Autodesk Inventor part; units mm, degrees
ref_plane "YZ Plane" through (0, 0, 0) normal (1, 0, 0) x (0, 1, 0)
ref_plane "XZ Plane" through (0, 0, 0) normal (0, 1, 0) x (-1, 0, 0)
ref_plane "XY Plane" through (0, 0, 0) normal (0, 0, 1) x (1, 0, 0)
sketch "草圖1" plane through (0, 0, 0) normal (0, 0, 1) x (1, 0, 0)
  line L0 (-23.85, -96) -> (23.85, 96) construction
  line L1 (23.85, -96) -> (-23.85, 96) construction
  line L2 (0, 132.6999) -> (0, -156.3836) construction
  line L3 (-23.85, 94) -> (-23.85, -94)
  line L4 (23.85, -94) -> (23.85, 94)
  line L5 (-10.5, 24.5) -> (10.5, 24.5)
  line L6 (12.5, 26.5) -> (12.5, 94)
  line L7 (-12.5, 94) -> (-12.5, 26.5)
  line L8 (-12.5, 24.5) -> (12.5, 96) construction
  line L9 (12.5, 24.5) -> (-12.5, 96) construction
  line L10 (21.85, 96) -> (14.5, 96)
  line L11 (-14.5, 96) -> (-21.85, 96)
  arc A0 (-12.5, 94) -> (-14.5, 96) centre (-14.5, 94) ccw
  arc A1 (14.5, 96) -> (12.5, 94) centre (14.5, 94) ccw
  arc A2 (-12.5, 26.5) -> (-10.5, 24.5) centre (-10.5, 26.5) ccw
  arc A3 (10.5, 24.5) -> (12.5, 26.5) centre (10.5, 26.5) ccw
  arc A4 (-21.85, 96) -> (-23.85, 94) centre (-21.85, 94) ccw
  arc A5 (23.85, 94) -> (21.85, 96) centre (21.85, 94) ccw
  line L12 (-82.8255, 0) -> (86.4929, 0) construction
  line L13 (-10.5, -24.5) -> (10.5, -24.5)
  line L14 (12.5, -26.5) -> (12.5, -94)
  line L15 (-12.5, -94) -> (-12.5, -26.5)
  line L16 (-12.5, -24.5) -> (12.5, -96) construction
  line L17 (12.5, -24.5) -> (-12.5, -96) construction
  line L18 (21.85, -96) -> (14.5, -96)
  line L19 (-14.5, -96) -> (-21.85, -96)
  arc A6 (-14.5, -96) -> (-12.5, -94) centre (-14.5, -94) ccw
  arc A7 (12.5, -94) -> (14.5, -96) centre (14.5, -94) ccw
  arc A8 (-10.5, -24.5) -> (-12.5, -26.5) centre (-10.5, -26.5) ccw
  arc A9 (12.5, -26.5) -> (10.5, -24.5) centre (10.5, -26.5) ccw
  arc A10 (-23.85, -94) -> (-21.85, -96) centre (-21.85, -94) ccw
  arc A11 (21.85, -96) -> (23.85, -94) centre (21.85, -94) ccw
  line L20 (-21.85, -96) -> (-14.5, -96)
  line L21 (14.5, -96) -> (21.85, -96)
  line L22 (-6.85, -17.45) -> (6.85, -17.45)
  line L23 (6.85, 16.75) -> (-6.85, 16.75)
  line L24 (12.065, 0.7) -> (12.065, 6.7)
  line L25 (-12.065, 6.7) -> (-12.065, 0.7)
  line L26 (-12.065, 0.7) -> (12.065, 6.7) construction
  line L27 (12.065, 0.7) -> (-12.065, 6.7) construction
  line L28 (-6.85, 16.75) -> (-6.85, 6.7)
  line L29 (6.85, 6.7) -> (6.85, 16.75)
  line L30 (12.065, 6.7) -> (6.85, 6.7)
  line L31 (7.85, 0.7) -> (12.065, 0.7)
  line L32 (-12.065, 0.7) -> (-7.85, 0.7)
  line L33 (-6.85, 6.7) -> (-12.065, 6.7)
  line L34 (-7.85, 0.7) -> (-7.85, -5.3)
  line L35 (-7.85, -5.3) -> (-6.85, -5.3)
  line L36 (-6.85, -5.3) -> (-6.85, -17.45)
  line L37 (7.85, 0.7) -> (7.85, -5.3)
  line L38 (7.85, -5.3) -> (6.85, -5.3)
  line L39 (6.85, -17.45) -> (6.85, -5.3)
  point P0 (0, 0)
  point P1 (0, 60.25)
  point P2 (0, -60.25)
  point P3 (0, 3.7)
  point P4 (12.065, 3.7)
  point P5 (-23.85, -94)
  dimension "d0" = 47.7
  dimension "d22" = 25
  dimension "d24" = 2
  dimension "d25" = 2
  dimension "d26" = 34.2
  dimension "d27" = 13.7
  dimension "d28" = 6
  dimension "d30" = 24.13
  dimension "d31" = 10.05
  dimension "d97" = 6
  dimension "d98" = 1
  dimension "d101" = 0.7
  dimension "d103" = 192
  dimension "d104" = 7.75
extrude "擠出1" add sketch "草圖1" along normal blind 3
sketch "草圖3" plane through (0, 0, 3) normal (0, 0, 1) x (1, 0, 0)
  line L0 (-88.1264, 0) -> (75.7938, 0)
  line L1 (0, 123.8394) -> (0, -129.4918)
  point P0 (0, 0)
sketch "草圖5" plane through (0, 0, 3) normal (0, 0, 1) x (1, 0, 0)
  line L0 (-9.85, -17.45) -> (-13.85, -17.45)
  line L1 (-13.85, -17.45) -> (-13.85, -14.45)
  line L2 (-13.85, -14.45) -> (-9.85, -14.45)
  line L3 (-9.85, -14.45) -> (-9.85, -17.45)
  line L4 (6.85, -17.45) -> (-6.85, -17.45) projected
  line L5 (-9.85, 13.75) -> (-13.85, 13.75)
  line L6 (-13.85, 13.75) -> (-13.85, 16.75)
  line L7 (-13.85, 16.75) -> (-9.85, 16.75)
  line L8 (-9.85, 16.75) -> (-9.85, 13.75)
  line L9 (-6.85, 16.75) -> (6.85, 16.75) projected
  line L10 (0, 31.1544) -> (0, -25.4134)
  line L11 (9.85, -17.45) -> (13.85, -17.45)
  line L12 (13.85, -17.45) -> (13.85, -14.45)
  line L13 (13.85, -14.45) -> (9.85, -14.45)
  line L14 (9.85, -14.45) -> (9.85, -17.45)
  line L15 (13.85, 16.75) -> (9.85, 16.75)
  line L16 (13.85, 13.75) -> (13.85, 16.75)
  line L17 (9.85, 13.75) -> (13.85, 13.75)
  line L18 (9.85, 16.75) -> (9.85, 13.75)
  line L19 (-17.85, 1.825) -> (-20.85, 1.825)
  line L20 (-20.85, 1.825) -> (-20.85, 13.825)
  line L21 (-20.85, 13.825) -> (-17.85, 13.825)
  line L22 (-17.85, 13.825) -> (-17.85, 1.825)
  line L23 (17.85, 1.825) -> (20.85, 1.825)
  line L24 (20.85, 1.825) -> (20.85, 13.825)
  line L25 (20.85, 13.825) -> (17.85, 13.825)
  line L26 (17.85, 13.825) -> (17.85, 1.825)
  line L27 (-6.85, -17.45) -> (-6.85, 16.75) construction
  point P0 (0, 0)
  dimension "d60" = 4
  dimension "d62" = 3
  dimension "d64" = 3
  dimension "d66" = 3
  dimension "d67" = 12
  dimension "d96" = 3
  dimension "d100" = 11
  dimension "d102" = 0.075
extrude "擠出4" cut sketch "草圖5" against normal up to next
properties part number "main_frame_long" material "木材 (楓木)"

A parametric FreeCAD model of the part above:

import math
import FreeCAD as App
import Part
import Sketcher

doc = App.newDocument("Part")
body = doc.addObject("PartDesign::Body", "Body")

sketch1 = body.newObject("Sketcher::SketchObject", "Sketch")
sketch1.AttachmentSupport = (doc.getObject("XY_Plane"), [""])
sketch1.MapMode = "FlatFace"
sketch1.addGeometry(Part.ArcOfCircle(Part.Circle(App.Vector(-21.9, 94, 0), App.Vector(0, 0, 1), 2), math.radians(90), math.radians(180)), False)
sketch1.addGeometry(Part.LineSegment(App.Vector(-23.9, 94, 0), App.Vector(-23.9, -94, 0)), False)
sketch1.addGeometry(Part.ArcOfCircle(Part.Circle(App.Vector(-21.9, -94, 0), App.Vector(0, 0, 1), 2), math.radians(180), math.radians(270)), False)
sketch1.addGeometry(Part.LineSegment(App.Vector(-21.9, -96, 0), App.Vector(-14.5, -96, 0)), False)
sketch1.addGeometry(Part.ArcOfCircle(Part.Circle(App.Vector(-14.5, -94, 0), App.Vector(0, 0, 1), 2), math.radians(-90), math.radians(0)), False)
sketch1.addGeometry(Part.LineSegment(App.Vector(-12.5, -94, 0), App.Vector(-12.5, -26.5, 0)), False)
sketch1.addGeometry(Part.ArcOfCircle(Part.Circle(App.Vector(-10.5, -26.5, 0), App.Vector(0, 0, 1), 2), math.radians(90), math.radians(180)), False)
sketch1.addGeometry(Part.LineSegment(App.Vector(-10.5, -24.5, 0), App.Vector(10.5, -24.5, 0)), False)
sketch1.addGeometry(Part.ArcOfCircle(Part.Circle(App.Vector(10.5, -26.5, 0), App.Vector(0, 0, 1), 2), math.radians(0), math.radians(90)), False)
sketch1.addGeometry(Part.LineSegment(App.Vector(12.5, -26.5, 0), App.Vector(12.5, -94, 0)), False)
sketch1.addGeometry(Part.ArcOfCircle(Part.Circle(App.Vector(14.5, -94, 0), App.Vector(0, 0, 1), 2), math.radians(180), math.radians(270)), False)
sketch1.addGeometry(Part.LineSegment(App.Vector(14.5, -96, 0), App.Vector(21.9, -96, 0)), False)
sketch1.addGeometry(Part.ArcOfCircle(Part.Circle(App.Vector(21.9, -94, 0), App.Vector(0, 0, 1), 2), math.radians(-90), math.radians(0)), False)
sketch1.addGeometry(Part.LineSegment(App.Vector(23.9, -94, 0), App.Vector(23.9, 94, 0)), False)
sketch1.addGeometry(Part.ArcOfCircle(Part.Circle(App.Vector(21.9, 94, 0), App.Vector(0, 0, 1), 2), math.radians(0), math.radians(90)), False)
sketch1.addGeometry(Part.LineSegment(App.Vector(21.9, 96, 0), App.Vector(14.5, 96, 0)), False)
sketch1.addGeometry(Part.ArcOfCircle(Part.Circle(App.Vector(14.5, 94, 0), App.Vector(0, 0, 1), 2), math.radians(90), math.radians(180)), False)
sketch1.addGeometry(Part.LineSegment(App.Vector(12.5, 94, 0), App.Vector(12.5, 26.5, 0)), False)
sketch1.addGeometry(Part.ArcOfCircle(Part.Circle(App.Vector(10.5, 26.5, 0), App.Vector(0, 0, 1), 2), math.radians(-90), math.radians(0)), False)
sketch1.addGeometry(Part.LineSegment(App.Vector(10.5, 24.5, 0), App.Vector(-10.5, 24.5, 0)), False)
sketch1.addGeometry(Part.ArcOfCircle(Part.Circle(App.Vector(-10.5, 26.5, 0), App.Vector(0, 0, 1), 2), math.radians(180), math.radians(270)), False)
sketch1.addGeometry(Part.LineSegment(App.Vector(-12.5, 26.5, 0), App.Vector(-12.5, 94, 0)), False)
sketch1.addGeometry(Part.ArcOfCircle(Part.Circle(App.Vector(-14.5, 94, 0), App.Vector(0, 0, 1), 2), math.radians(0), math.radians(90)), False)
sketch1.addGeometry(Part.LineSegment(App.Vector(-14.5, 96, 0), App.Vector(-21.9, 96, 0)), False)
sketch1.addGeometry(Part.LineSegment(App.Vector(6.8, -17.4, 0), App.Vector(-6.8, -17.4, 0)), False)
sketch1.addGeometry(Part.LineSegment(App.Vector(-6.8, -17.4, 0), App.Vector(-6.8, -5.3, 0)), False)
sketch1.addGeometry(Part.LineSegment(App.Vector(-6.8, -5.3, 0), App.Vector(-7.8, -5.3, 0)), False)
sketch1.addGeometry(Part.LineSegment(App.Vector(-7.8, -5.3, 0), App.Vector(-7.8, 0.7, 0)), False)
sketch1.addGeometry(Part.LineSegment(App.Vector(-7.8, 0.7, 0), App.Vector(-12.1, 0.7, 0)), False)
sketch1.addGeometry(Part.LineSegment(App.Vector(-12.1, 0.7, 0), App.Vector(-12.1, 6.7, 0)), False)
sketch1.addGeometry(Part.LineSegment(App.Vector(-12.1, 6.7, 0), App.Vector(-6.8, 6.7, 0)), False)
sketch1.addGeometry(Part.LineSegment(App.Vector(-6.8, 6.7, 0), App.Vector(-6.8, 16.8, 0)), False)
sketch1.addGeometry(Part.LineSegment(App.Vector(-6.8, 16.8, 0), App.Vector(6.8, 16.8, 0)), False)
sketch1.addGeometry(Part.LineSegment(App.Vector(6.8, 16.8, 0), App.Vector(6.8, 6.7, 0)), False)
sketch1.addGeometry(Part.LineSegment(App.Vector(6.8, 6.7, 0), App.Vector(12.1, 6.7, 0)), False)
sketch1.addGeometry(Part.LineSegment(App.Vector(12.1, 6.7, 0), App.Vector(12.1, 0.7, 0)), False)
sketch1.addGeometry(Part.LineSegment(App.Vector(12.1, 0.7, 0), App.Vector(7.8, 0.7, 0)), False)
sketch1.addGeometry(Part.LineSegment(App.Vector(7.8, 0.7, 0), App.Vector(7.8, -5.3, 0)), False)
sketch1.addGeometry(Part.LineSegment(App.Vector(7.8, -5.3, 0), App.Vector(6.8, -5.3, 0)), False)
sketch1.addGeometry(Part.LineSegment(App.Vector(6.8, -5.3, 0), App.Vector(6.8, -17.4, 0)), False)
sketch1.addConstraint(Sketcher.Constraint("Tangent", 0, 2, 1, 1))
sketch1.addConstraint(Sketcher.Constraint("Tangent", 1, 2, 2, 1))
sketch1.addConstraint(Sketcher.Constraint("Tangent", 2, 2, 3, 1))
sketch1.addConstraint(Sketcher.Constraint("Tangent", 3, 2, 4, 1))
sketch1.addConstraint(Sketcher.Constraint("Tangent", 4, 2, 5, 1))
sketch1.addConstraint(Sketcher.Constraint("Tangent", 5, 2, 6, 2))
sketch1.addConstraint(Sketcher.Constraint("Tangent", 6, 1, 7, 1))
sketch1.addConstraint(Sketcher.Constraint("Tangent", 7, 2, 8, 2))
sketch1.addConstraint(Sketcher.Constraint("Tangent", 8, 1, 9, 1))
sketch1.addConstraint(Sketcher.Constraint("Tangent", 9, 2, 10, 1))
sketch1.addConstraint(Sketcher.Constraint("Tangent", 10, 2, 11, 1))
sketch1.addConstraint(Sketcher.Constraint("Tangent", 11, 2, 12, 1))
sketch1.addConstraint(Sketcher.Constraint("Tangent", 12, 2, 13, 1))
sketch1.addConstraint(Sketcher.Constraint("Tangent", 13, 2, 14, 1))
sketch1.addConstraint(Sketcher.Constraint("Tangent", 14, 2, 15, 1))
sketch1.addConstraint(Sketcher.Constraint("Tangent", 15, 2, 16, 1))
sketch1.addConstraint(Sketcher.Constraint("Tangent", 16, 2, 17, 1))
sketch1.addConstraint(Sketcher.Constraint("Tangent", 17, 2, 18, 2))
sketch1.addConstraint(Sketcher.Constraint("Tangent", 18, 1, 19, 1))
sketch1.addConstraint(Sketcher.Constraint("Tangent", 19, 2, 20, 2))
sketch1.addConstraint(Sketcher.Constraint("Tangent", 20, 1, 21, 1))
sketch1.addConstraint(Sketcher.Constraint("Tangent", 21, 2, 22, 1))
sketch1.addConstraint(Sketcher.Constraint("Tangent", 22, 2, 23, 1))
sketch1.addConstraint(Sketcher.Constraint("Tangent", 23, 2, 0, 1))
sketch1.addConstraint(Sketcher.Constraint("Coincident", 24, 2, 25, 1))
sketch1.addConstraint(Sketcher.Constraint("Coincident", 25, 2, 26, 1))
sketch1.addConstraint(Sketcher.Constraint("Coincident", 26, 2, 27, 1))
sketch1.addConstraint(Sketcher.Constraint("Coincident", 27, 2, 28, 1))
sketch1.addConstraint(Sketcher.Constraint("Coincident", 28, 2, 29, 1))
sketch1.addConstraint(Sketcher.Constraint("Coincident", 29, 2, 30, 1))
sketch1.addConstraint(Sketcher.Constraint("Coincident", 30, 2, 31, 1))
sketch1.addConstraint(Sketcher.Constraint("Coincident", 31, 2, 32, 1))
sketch1.addConstraint(Sketcher.Constraint("Coincident", 32, 2, 33, 1))
sketch1.addConstraint(Sketcher.Constraint("Coincident", 33, 2, 34, 1))
sketch1.addConstraint(Sketcher.Constraint("Coincident", 34, 2, 35, 1))
sketch1.addConstraint(Sketcher.Constraint("Coincident", 35, 2, 36, 1))
sketch1.addConstraint(Sketcher.Constraint("Coincident", 36, 2, 37, 1))
sketch1.addConstraint(Sketcher.Constraint("Coincident", 37, 2, 38, 1))
sketch1.addConstraint(Sketcher.Constraint("Coincident", 38, 2, 39, 1))
sketch1.addConstraint(Sketcher.Constraint("Coincident", 39, 2, 24, 1))
sketch1.addConstraint(Sketcher.Constraint("Vertical", 1))
sketch1.addConstraint(Sketcher.Constraint("Horizontal", 3))
sketch1.addConstraint(Sketcher.Constraint("Vertical", 5))
sketch1.addConstraint(Sketcher.Constraint("Horizontal", 7))
sketch1.addConstraint(Sketcher.Constraint("Vertical", 9))
sketch1.addConstraint(Sketcher.Constraint("Horizontal", 11))
sketch1.addConstraint(Sketcher.Constraint("Vertical", 13))
sketch1.addConstraint(Sketcher.Constraint("Horizontal", 15))
sketch1.addConstraint(Sketcher.Constraint("Vertical", 17))
sketch1.addConstraint(Sketcher.Constraint("Horizontal", 19))
sketch1.addConstraint(Sketcher.Constraint("Vertical", 21))
sketch1.addConstraint(Sketcher.Constraint("Horizontal", 23))
sketch1.addConstraint(Sketcher.Constraint("Horizontal", 24))
sketch1.addConstraint(Sketcher.Constraint("Vertical", 25))
sketch1.addConstraint(Sketcher.Constraint("Horizontal", 26))
sketch1.addConstraint(Sketcher.Constraint("Vertical", 27))
sketch1.addConstraint(Sketcher.Constraint("Horizontal", 28))
sketch1.addConstraint(Sketcher.Constraint("Vertical", 29))
sketch1.addConstraint(Sketcher.Constraint("Horizontal", 30))
sketch1.addConstraint(Sketcher.Constraint("Vertical", 31))
sketch1.addConstraint(Sketcher.Constraint("Horizontal", 32))
sketch1.addConstraint(Sketcher.Constraint("Vertical", 33))
sketch1.addConstraint(Sketcher.Constraint("Horizontal", 34))
sketch1.addConstraint(Sketcher.Constraint("Vertical", 35))
sketch1.addConstraint(Sketcher.Constraint("Horizontal", 36))
sketch1.addConstraint(Sketcher.Constraint("Vertical", 37))
sketch1.addConstraint(Sketcher.Constraint("Horizontal", 38))
sketch1.addConstraint(Sketcher.Constraint("Vertical", 39))
sketch1.addConstraint(Sketcher.Constraint("Equal", 0, 2))
sketch1.addConstraint(Sketcher.Constraint("Equal", 2, 4))
sketch1.addConstraint(Sketcher.Constraint("Equal", 4, 6))
sketch1.addConstraint(Sketcher.Constraint("Equal", 6, 8))
sketch1.addConstraint(Sketcher.Constraint("Equal", 8, 10))
sketch1.addConstraint(Sketcher.Constraint("Equal", 10, 12))
sketch1.addConstraint(Sketcher.Constraint("Equal", 12, 14))
sketch1.addConstraint(Sketcher.Constraint("Equal", 14, 16))
sketch1.addConstraint(Sketcher.Constraint("Equal", 16, 18))
sketch1.addConstraint(Sketcher.Constraint("Equal", 18, 20))
sketch1.addConstraint(Sketcher.Constraint("Equal", 20, 22))
sketch1.addConstraint(Sketcher.Constraint("Symmetric", 0, 3, 12, 3, -1, 1))
sketch1.addConstraint(Sketcher.Constraint("Symmetric", 4, 3, 16, 3, -1, 1))
sketch1.addConstraint(Sketcher.Constraint("Symmetric", 8, 3, 20, 3, -1, 1))
sketch1.addConstraint(Sketcher.Constraint("Symmetric", 4, 3, 10, 3, -2))
sketch1.addConstraint(Sketcher.Constraint("Symmetric", 30, 2, 33, 2, -2))
sketch1.addConstraint(Sketcher.Constraint("Symmetric", 28, 2, 35, 2, -2))
sketch1.addConstraint(Sketcher.Constraint("Symmetric", 26, 2, 37, 2, -2))
sketch1.addConstraint(Sketcher.Constraint("Vertical", 25, 2, 30, 2))
sketch1.addConstraint(Sketcher.Constraint("Vertical", 33, 2, 38, 2))
sketch1.addConstraint(Sketcher.Constraint("Equal", 27, 29))
sketch1.addConstraint(Sketcher.Constraint("Radius", 0, 2.0))
sketch1.addConstraint(Sketcher.Constraint("DistanceX", 26, 2, 26, 1, 1.0))
sketch1.addConstraint(Sketcher.Constraint("DistanceY", 27, 1, 27, 2, 6.0))
sketch1.addConstraint(Sketcher.Constraint("DistanceX", 24, 2, 24, 1, 13.7))
sketch1.addConstraint(Sketcher.Constraint("DistanceX", 4, 3, 8, 3, 25.0))
sketch1.addConstraint(Sketcher.Constraint("DistanceY", 31, 1, 31, 2, 10.05))
sketch1.addConstraint(Sketcher.Constraint("DistanceY", -1, 1, 27, 2, 0.7))
sketch1.addConstraint(Sketcher.Constraint("DistanceX", 0, 2, 13, 2, 47.7))
sketch1.addConstraint(Sketcher.Constraint("DistanceY", 1, 2, 1, 1, 188.0))
sketch1.addConstraint(Sketcher.Constraint("DistanceY", 31, 2, 19, 2, 7.75))
sketch1.addConstraint(Sketcher.Constraint("DistanceY", 25, 1, 25, 2, 12.15))
sketch1.addConstraint(Sketcher.Constraint("DistanceX", 28, 2, 28, 1, 4.215))
pad1 = body.newObject("PartDesign::Pad", "Pad")
pad1.Profile = sketch1
pad1.Length = 3

sketch2 = body.newObject("Sketcher::SketchObject", "Sketch001")
sketch2.AttachmentSupport = (doc.getObject("XY_Plane"), [""])
sketch2.MapMode = "FlatFace"
sketch2.AttachmentOffset = App.Placement(App.Vector(0, 0, 3), App.Rotation())
sketch2.addGeometry(Part.LineSegment(App.Vector(-13.8, -17.4, 0), App.Vector(-9.8, -17.4, 0)), False)
sketch2.addGeometry(Part.LineSegment(App.Vector(-9.8, -17.4, 0), App.Vector(-9.8, -14.4, 0)), False)
sketch2.addGeometry(Part.LineSegment(App.Vector(-9.8, -14.4, 0), App.Vector(-13.8, -14.4, 0)), False)
sketch2.addGeometry(Part.LineSegment(App.Vector(-13.8, -14.4, 0), App.Vector(-13.8, -17.4, 0)), False)
sketch2.addGeometry(Part.LineSegment(App.Vector(-13.8, 13.8, 0), App.Vector(-9.8, 13.8, 0)), False)
sketch2.addGeometry(Part.LineSegment(App.Vector(-9.8, 13.8, 0), App.Vector(-9.8, 16.8, 0)), False)
sketch2.addGeometry(Part.LineSegment(App.Vector(-9.8, 16.8, 0), App.Vector(-13.8, 16.8, 0)), False)
sketch2.addGeometry(Part.LineSegment(App.Vector(-13.8, 16.8, 0), App.Vector(-13.8, 13.8, 0)), False)
sketch2.addGeometry(Part.LineSegment(App.Vector(9.8, -14.4, 0), App.Vector(9.8, -17.4, 0)), False)
sketch2.addGeometry(Part.LineSegment(App.Vector(9.8, -17.4, 0), App.Vector(13.8, -17.4, 0)), False)
sketch2.addGeometry(Part.LineSegment(App.Vector(13.8, -17.4, 0), App.Vector(13.8, -14.4, 0)), False)
sketch2.addGeometry(Part.LineSegment(App.Vector(13.8, -14.4, 0), App.Vector(9.8, -14.4, 0)), False)
sketch2.addGeometry(Part.LineSegment(App.Vector(13.8, 13.8, 0), App.Vector(13.8, 16.8, 0)), False)
sketch2.addGeometry(Part.LineSegment(App.Vector(13.8, 16.8, 0), App.Vector(9.8, 16.8, 0)), False)
sketch2.addGeometry(Part.LineSegment(App.Vector(9.8, 16.8, 0), App.Vector(9.8, 13.8, 0)), False)
sketch2.addGeometry(Part.LineSegment(App.Vector(9.8, 13.8, 0), App.Vector(13.8, 13.8, 0)), False)
sketch2.addGeometry(Part.LineSegment(App.Vector(-20.9, 1.8, 0), App.Vector(-17.9, 1.8, 0)), False)
sketch2.addGeometry(Part.LineSegment(App.Vector(-17.9, 1.8, 0), App.Vector(-17.9, 13.8, 0)), False)
sketch2.addGeometry(Part.LineSegment(App.Vector(-17.9, 13.8, 0), App.Vector(-20.9, 13.8, 0)), False)
sketch2.addGeometry(Part.LineSegment(App.Vector(-20.9, 13.8, 0), App.Vector(-20.9, 1.8, 0)), False)
sketch2.addGeometry(Part.LineSegment(App.Vector(17.9, 13.8, 0), App.Vector(17.9, 1.8, 0)), False)
sketch2.addGeometry(Part.LineSegment(App.Vector(17.9, 1.8, 0), App.Vector(20.9, 1.8, 0)), False)
sketch2.addGeometry(Part.LineSegment(App.Vector(20.9, 1.8, 0), App.Vector(20.9, 13.8, 0)), False)
sketch2.addGeometry(Part.LineSegment(App.Vector(20.9, 13.8, 0), App.Vector(17.9, 13.8, 0)), False)
sketch2.addConstraint(Sketcher.Constraint("Coincident", 0, 2, 1, 1))
sketch2.addConstraint(Sketcher.Constraint("Coincident", 1, 2, 2, 1))
sketch2.addConstraint(Sketcher.Constraint("Coincident", 2, 2, 3, 1))
sketch2.addConstraint(Sketcher.Constraint("Coincident", 3, 2, 0, 1))
sketch2.addConstraint(Sketcher.Constraint("Coincident", 4, 2, 5, 1))
sketch2.addConstraint(Sketcher.Constraint("Coincident", 5, 2, 6, 1))
sketch2.addConstraint(Sketcher.Constraint("Coincident", 6, 2, 7, 1))
sketch2.addConstraint(Sketcher.Constraint("Coincident", 7, 2, 4, 1))
sketch2.addConstraint(Sketcher.Constraint("Coincident", 8, 2, 9, 1))
sketch2.addConstraint(Sketcher.Constraint("Coincident", 9, 2, 10, 1))
sketch2.addConstraint(Sketcher.Constraint("Coincident", 10, 2, 11, 1))
sketch2.addConstraint(Sketcher.Constraint("Coincident", 11, 2, 8, 1))
sketch2.addConstraint(Sketcher.Constraint("Coincident", 12, 2, 13, 1))
sketch2.addConstraint(Sketcher.Constraint("Coincident", 13, 2, 14, 1))
sketch2.addConstraint(Sketcher.Constraint("Coincident", 14, 2, 15, 1))
sketch2.addConstraint(Sketcher.Constraint("Coincident", 15, 2, 12, 1))
sketch2.addConstraint(Sketcher.Constraint("Coincident", 16, 2, 17, 1))
sketch2.addConstraint(Sketcher.Constraint("Coincident", 17, 2, 18, 1))
sketch2.addConstraint(Sketcher.Constraint("Coincident", 18, 2, 19, 1))
sketch2.addConstraint(Sketcher.Constraint("Coincident", 19, 2, 16, 1))
sketch2.addConstraint(Sketcher.Constraint("Coincident", 20, 2, 21, 1))
sketch2.addConstraint(Sketcher.Constraint("Coincident", 21, 2, 22, 1))
sketch2.addConstraint(Sketcher.Constraint("Coincident", 22, 2, 23, 1))
sketch2.addConstraint(Sketcher.Constraint("Coincident", 23, 2, 20, 1))
sketch2.addConstraint(Sketcher.Constraint("Horizontal", 0))
sketch2.addConstraint(Sketcher.Constraint("Vertical", 1))
sketch2.addConstraint(Sketcher.Constraint("Horizontal", 2))
sketch2.addConstraint(Sketcher.Constraint("Vertical", 3))
sketch2.addConstraint(Sketcher.Constraint("Horizontal", 4))
sketch2.addConstraint(Sketcher.Constraint("Vertical", 5))
sketch2.addConstraint(Sketcher.Constraint("Horizontal", 6))
sketch2.addConstraint(Sketcher.Constraint("Vertical", 7))
sketch2.addConstraint(Sketcher.Constraint("Vertical", 8))
sketch2.addConstraint(Sketcher.Constraint("Horizontal", 9))
sketch2.addConstraint(Sketcher.Constraint("Vertical", 10))
sketch2.addConstraint(Sketcher.Constraint("Horizontal", 11))
sketch2.addConstraint(Sketcher.Constraint("Vertical", 12))
sketch2.addConstraint(Sketcher.Constraint("Horizontal", 13))
sketch2.addConstraint(Sketcher.Constraint("Vertical", 14))
sketch2.addConstraint(Sketcher.Constraint("Horizontal", 15))
sketch2.addConstraint(Sketcher.Constraint("Horizontal", 16))
sketch2.addConstraint(Sketcher.Constraint("Vertical", 17))
sketch2.addConstraint(Sketcher.Constraint("Horizontal", 18))
sketch2.addConstraint(Sketcher.Constraint("Vertical", 19))
sketch2.addConstraint(Sketcher.Constraint("Vertical", 20))
sketch2.addConstraint(Sketcher.Constraint("Horizontal", 21))
sketch2.addConstraint(Sketcher.Constraint("Vertical", 22))
sketch2.addConstraint(Sketcher.Constraint("Horizontal", 23))
sketch2.addConstraint(Sketcher.Constraint("Symmetric", 0, 2, 8, 2, -2))
sketch2.addConstraint(Sketcher.Constraint("Symmetric", 2, 2, 10, 2, -2))
sketch2.addConstraint(Sketcher.Constraint("Symmetric", 6, 2, 12, 2, -2))
sketch2.addConstraint(Sketcher.Constraint("Symmetric", 4, 2, 14, 2, -2))
sketch2.addConstraint(Sketcher.Constraint("Symmetric", 16, 2, 20, 2, -2))
sketch2.addConstraint(Sketcher.Constraint("Symmetric", 18, 2, 22, 2, -2))
sketch2.addConstraint(Sketcher.Constraint("Vertical", 1, 2, 4, 2))
sketch2.addConstraint(Sketcher.Constraint("Vertical", 3, 2, 6, 2))
sketch2.addConstraint(Sketcher.Constraint("Equal", 23, 1))
sketch2.addConstraint(Sketcher.Constraint("Equal", 3, 5))
sketch2.addConstraint(Sketcher.Constraint("DistanceX", 0, 1, 0, 2, 4.0))
sketch2.addConstraint(Sketcher.Constraint("DistanceX", 16, 1, 16, 2, 3.0))
sketch2.addConstraint(Sketcher.Constraint("DistanceY", 17, 1, 17, 2, 12.0))
sketch2.addConstraint(Sketcher.Constraint("DistanceX", 16, 2, 7, 2, 4.0))
sketch2.addConstraint(Sketcher.Constraint("DistanceY", 7, 2, 17, 2, 0.075))
sketch2.addConstraint(Sketcher.Constraint("DistanceY", 1, 2, 4, 2, 28.2))
sketch2.addConstraint(Sketcher.Constraint("DistanceX", 0, 2, 8, 2, 19.7))
sketch2.addConstraint(Sketcher.Constraint("DistanceY", 0, 2, -1, 1, 17.45))
pocket1 = body.newObject("PartDesign::Pocket", "Pocket")
pocket1.Profile = sketch2
pocket1.Length = 3

doc.recompute()
